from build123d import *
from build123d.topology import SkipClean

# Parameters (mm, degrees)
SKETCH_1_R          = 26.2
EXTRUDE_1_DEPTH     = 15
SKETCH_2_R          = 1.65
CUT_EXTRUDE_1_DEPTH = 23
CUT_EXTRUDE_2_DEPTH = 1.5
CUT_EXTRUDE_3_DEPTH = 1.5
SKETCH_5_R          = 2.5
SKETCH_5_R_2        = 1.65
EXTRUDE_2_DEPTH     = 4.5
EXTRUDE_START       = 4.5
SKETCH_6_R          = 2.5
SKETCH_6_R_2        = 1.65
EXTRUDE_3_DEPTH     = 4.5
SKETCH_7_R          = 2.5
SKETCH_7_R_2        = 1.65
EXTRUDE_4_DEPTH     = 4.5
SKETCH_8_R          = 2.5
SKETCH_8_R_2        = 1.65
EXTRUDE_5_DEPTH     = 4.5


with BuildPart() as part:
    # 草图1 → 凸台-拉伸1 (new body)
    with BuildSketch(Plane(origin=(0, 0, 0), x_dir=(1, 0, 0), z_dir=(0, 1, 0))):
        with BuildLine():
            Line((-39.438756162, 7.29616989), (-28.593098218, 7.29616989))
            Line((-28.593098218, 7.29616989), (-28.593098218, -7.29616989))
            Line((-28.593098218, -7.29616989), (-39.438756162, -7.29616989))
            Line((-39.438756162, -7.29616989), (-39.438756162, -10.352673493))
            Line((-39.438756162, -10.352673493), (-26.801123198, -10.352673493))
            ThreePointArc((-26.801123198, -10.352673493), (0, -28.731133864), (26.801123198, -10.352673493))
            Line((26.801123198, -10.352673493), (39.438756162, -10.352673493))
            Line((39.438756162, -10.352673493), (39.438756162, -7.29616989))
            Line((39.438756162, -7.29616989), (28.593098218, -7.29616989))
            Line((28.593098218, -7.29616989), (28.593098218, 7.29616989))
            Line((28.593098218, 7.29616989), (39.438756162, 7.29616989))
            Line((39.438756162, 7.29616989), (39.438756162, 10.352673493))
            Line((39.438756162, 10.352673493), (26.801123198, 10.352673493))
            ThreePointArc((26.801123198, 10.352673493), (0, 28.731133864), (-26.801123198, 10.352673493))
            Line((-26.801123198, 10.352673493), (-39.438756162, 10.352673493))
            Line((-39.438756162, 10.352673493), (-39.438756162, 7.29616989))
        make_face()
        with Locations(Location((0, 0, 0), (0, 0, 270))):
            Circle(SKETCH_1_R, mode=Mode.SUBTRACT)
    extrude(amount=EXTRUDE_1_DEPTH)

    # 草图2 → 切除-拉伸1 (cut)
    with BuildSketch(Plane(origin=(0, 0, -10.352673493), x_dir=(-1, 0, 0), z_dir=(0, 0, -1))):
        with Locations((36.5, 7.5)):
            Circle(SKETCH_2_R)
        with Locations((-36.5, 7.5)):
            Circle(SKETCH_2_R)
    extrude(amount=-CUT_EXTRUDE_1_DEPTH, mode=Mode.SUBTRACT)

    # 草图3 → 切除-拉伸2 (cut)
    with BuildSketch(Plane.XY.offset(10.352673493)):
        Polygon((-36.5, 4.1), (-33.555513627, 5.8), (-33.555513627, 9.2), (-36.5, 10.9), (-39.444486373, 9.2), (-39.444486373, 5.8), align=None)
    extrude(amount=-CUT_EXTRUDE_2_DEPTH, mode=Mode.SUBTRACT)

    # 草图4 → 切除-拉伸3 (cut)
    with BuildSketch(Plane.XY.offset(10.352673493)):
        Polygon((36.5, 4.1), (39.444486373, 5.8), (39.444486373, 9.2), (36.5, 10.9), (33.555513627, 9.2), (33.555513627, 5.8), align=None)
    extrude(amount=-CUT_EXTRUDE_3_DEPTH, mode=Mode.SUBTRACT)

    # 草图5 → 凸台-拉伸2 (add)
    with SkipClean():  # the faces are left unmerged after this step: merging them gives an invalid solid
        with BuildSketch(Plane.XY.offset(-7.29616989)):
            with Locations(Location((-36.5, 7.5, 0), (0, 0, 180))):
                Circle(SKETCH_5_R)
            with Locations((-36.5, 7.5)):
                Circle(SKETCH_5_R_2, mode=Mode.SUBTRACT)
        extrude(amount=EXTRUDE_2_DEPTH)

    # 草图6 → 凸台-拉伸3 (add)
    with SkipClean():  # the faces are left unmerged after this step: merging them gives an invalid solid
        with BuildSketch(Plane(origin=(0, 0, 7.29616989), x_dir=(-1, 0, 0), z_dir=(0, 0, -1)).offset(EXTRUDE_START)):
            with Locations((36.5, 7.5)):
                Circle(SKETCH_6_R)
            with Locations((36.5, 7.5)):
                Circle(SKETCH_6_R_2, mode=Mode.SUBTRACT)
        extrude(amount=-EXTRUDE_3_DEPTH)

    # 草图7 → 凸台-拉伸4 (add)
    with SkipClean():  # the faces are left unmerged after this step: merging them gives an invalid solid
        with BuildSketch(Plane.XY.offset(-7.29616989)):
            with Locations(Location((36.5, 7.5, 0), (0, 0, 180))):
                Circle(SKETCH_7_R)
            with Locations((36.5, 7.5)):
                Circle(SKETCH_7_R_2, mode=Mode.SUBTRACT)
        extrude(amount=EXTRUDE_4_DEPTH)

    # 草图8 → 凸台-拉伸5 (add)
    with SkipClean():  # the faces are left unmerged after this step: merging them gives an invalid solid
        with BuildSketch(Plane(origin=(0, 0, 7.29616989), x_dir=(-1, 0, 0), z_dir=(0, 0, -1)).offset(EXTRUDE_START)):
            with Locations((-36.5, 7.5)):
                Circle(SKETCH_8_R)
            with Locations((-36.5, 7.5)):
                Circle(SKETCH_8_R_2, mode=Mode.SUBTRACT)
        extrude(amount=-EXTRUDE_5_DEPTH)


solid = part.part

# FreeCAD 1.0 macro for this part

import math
import FreeCAD as App
import Part
import Sketcher
Q = App.Units.Quantity


def add_polygon(sketch, points):
    """Adds a closed chain of lines whose ends are joined by coincident constraints."""
    first, n = sketch.GeometryCount, len(points)
    for a, b in zip(points, points[1:] + points[:1]):
        sketch.addGeometry(Part.LineSegment(App.Vector(*a, 0), App.Vector(*b, 0)), False)
    for i in range(n):
        sketch.addConstraint(Sketcher.Constraint("Coincident", first + i, 2, first + (i + 1) % n, 1))

doc = App.newDocument("Part")
body = doc.addObject("PartDesign::Body", "Body")

sketch1 = body.newObject("Sketcher::SketchObject", "Sketch")
sketch1.AttachmentSupport = (doc.getObject("XZ_Plane"), [""])
sketch1.MapMode = "FlatFace"
sketch1.addGeometry([
    Part.LineSegment(App.Vector(-39.4, -7.3, 0), App.Vector(-28.6, -7.3, 0)),
    Part.LineSegment(App.Vector(-28.6, -7.3, 0), App.Vector(-28.6, 7.3, 0)),
    Part.LineSegment(App.Vector(-28.6, 7.3, 0), App.Vector(-39.4, 7.3, 0)),
    Part.LineSegment(App.Vector(-39.4, 7.3, 0), App.Vector(-39.4, 10.4, 0)),
    Part.LineSegment(App.Vector(-39.4, 10.4, 0), App.Vector(-26.8, 10.4, 0)),
    Part.ArcOfCircle(Part.Circle(App.Vector(0, 0, 0), App.Vector(0, 0, 1), 28.7), math.radians(21), math.radians(159)),
    Part.LineSegment(App.Vector(26.8, 10.4, 0), App.Vector(39.4, 10.4, 0)),
    Part.LineSegment(App.Vector(39.4, 10.4, 0), App.Vector(39.4, 7.3, 0)),
    Part.LineSegment(App.Vector(39.4, 7.3, 0), App.Vector(28.6, 7.3, 0)),
    Part.LineSegment(App.Vector(28.6, 7.3, 0), App.Vector(28.6, -7.3, 0)),
    Part.LineSegment(App.Vector(28.6, -7.3, 0), App.Vector(39.4, -7.3, 0)),
    Part.LineSegment(App.Vector(39.4, -7.3, 0), App.Vector(39.4, -10.4, 0)),
    Part.LineSegment(App.Vector(39.4, -10.4, 0), App.Vector(26.8, -10.4, 0)),
    Part.ArcOfCircle(Part.Circle(App.Vector(0, 0, 0), App.Vector(0, 0, 1), 28.7), math.radians(-159), math.radians(-21)),
    Part.LineSegment(App.Vector(-26.8, -10.4, 0), App.Vector(-39.4, -10.4, 0)),
    Part.LineSegment(App.Vector(-39.4, -10.4, 0), App.Vector(-39.4, -7.3, 0)),
    Part.Circle(App.Vector(0, 0, 0), App.Vector(0, 0, 1), 26.2),
], False)
sketch1.addConstraint([
    Sketcher.Constraint("Coincident", 0, 2, 1, 1),
    Sketcher.Constraint("Coincident", 1, 2, 2, 1),
    Sketcher.Constraint("Coincident", 2, 2, 3, 1),
    Sketcher.Constraint("Coincident", 3, 2, 4, 1),
    Sketcher.Constraint("Coincident", 4, 2, 5, 2),
    Sketcher.Constraint("Coincident", 5, 1, 6, 1),
    Sketcher.Constraint("Coincident", 6, 2, 7, 1),
    Sketcher.Constraint("Coincident", 7, 2, 8, 1),
    Sketcher.Constraint("Coincident", 8, 2, 9, 1),
    Sketcher.Constraint("Coincident", 9, 2, 10, 1),
    Sketcher.Constraint("Coincident", 10, 2, 11, 1),
    Sketcher.Constraint("Coincident", 11, 2, 12, 1),
    Sketcher.Constraint("Coincident", 12, 2, 13, 2),
    Sketcher.Constraint("Coincident", 13, 1, 14, 1),
    Sketcher.Constraint("Coincident", 14, 2, 15, 1),
    Sketcher.Constraint("Coincident", 15, 2, 0, 1),
    Sketcher.Constraint("Horizontal", 0),
    Sketcher.Constraint("Vertical", 1),
    Sketcher.Constraint("Horizontal", 2),
    Sketcher.Constraint("Vertical", 3),
    Sketcher.Constraint("Horizontal", 4),
    Sketcher.Constraint("Horizontal", 6),
    Sketcher.Constraint("Vertical", 7),
    Sketcher.Constraint("Horizontal", 8),
    Sketcher.Constraint("Vertical", 9),
    Sketcher.Constraint("Horizontal", 10),
    Sketcher.Constraint("Vertical", 11),
    Sketcher.Constraint("Horizontal", 12),
    Sketcher.Constraint("Horizontal", 14),
    Sketcher.Constraint("Vertical", 15),
    Sketcher.Constraint("Coincident", 5, 3, -1, 1),
    Sketcher.Constraint("Coincident", 13, 3, -1, 1),
    Sketcher.Constraint("Coincident", 16, 3, -1, 1),
    Sketcher.Constraint("Equal", 5, 13),
    Sketcher.Constraint("Symmetric", 0, 2, 8, 2, -1, 1),
    Sketcher.Constraint("Symmetric", 2, 2, 10, 2, -1, 1),
    Sketcher.Constraint("Symmetric", 6, 2, 14, 2, -1, 1),
    Sketcher.Constraint("Symmetric", 3, 2, 6, 2, -2),
    Sketcher.Constraint("Horizontal", 2, 2, 7, 2),
    Sketcher.Constraint("Horizontal", 12, 2, 13, 1),
    Sketcher.Constraint("Diameter", 16, Q("52.4 mm")),
    Sketcher.Constraint("Radius", 5, Q("28.731134 mm")),
    Sketcher.Constraint("DistanceY", 1, 1, 1, 2, Q("14.59234 mm")),
    Sketcher.Constraint("DistanceX", 0, 2, -1, 1, Q("28.593098 mm")),
    Sketcher.Constraint("DistanceX", 0, 1, 0, 2, Q("10.845658 mm")),
    Sketcher.Constraint("DistanceX", 4, 1, 4, 2, Q("12.637633 mm")),
])
pad1 = body.newObject("PartDesign::Pad", "Pad")
pad1.Profile = sketch1
pad1.Length = 15
pad1.Reversed = True

sketch2 = body.newObject("Sketcher::SketchObject", "Sketch001")
sketch2.AttachmentSupport = (doc.getObject("XY_Plane"), [""])
sketch2.MapMode = "FlatFace"
sketch2.AttachmentOffset = App.Placement(App.Vector(0, 0, -10.352673), App.Rotation())
sketch2.addGeometry([
    Part.Circle(App.Vector(-36.5, 7.5, 0), App.Vector(0, 0, 1), 1.6),
    Part.Circle(App.Vector(36.5, 7.5, 0), App.Vector(0, 0, 1), 1.6),
], False)
sketch2.addConstraint([
    Sketcher.Constraint("Equal", 0, 1),
    Sketcher.Constraint("Symmetric", 0, 3, 1, 3, -2),
    Sketcher.Constraint("Diameter", 0, Q("3.3 mm")),
    Sketcher.Constraint("DistanceX", 0, 3, 1, 3, Q("73 mm")),
    Sketcher.Constraint("DistanceY", -1, 1, 0, 3, Q("7.5 mm")),
])
pocket1 = body.newObject("PartDesign::Pocket", "Pocket")
pocket1.Profile = sketch2
pocket1.Length = 23
pocket1.Reversed = True

sketch3 = body.newObject("Sketcher::SketchObject", "Sketch002")
sketch3.AttachmentSupport = (doc.getObject("XY_Plane"), [""])
sketch3.MapMode = "FlatFace"
sketch3.AttachmentOffset = App.Placement(App.Vector(0, 0, 10.352673), App.Rotation())
add_polygon(sketch3, [(-36.5, 4.1), (-33.6, 5.8), (-33.6, 9.2), (-36.5, 10.9), (-39.4, 9.2), (-39.4, 5.8)])
sketch3.addConstraint([
    Sketcher.Constraint("Vertical", 1),
    Sketcher.Constraint("Vertical", 4),
    Sketcher.Constraint("Parallel", 0, 3),
    Sketcher.Constraint("Parallel", 2, 5),
    Sketcher.Constraint("Horizontal", 1, 2, 3, 2),
    Sketcher.Constraint("Horizontal", 0, 2, 4, 2),
    Sketcher.Constraint("Vertical", 2, 2, 5, 2),
    Sketcher.Constraint("Angle", 0, Q("30 deg")),
    Sketcher.Constraint("DistanceY", 1, 1, 1, 2, Q("3.4 mm")),
    Sketcher.Constraint("Distance", 0, Q("3.4 mm")),
    Sketcher.Constraint("DistanceY", -1, 1, 0, 2, Q("5.8 mm")),
    Sketcher.Constraint("DistanceX", 2, 2, -1, 1, Q("36.5 mm")),
])
pocket2 = body.newObject("PartDesign::Pocket", "Pocket001")
pocket2.Profile = sketch3
pocket2.Length = 1.5

sketch4 = body.newObject("Sketcher::SketchObject", "Sketch003")
sketch4.AttachmentSupport = (doc.getObject("XY_Plane"), [""])
sketch4.MapMode = "FlatFace"
sketch4.AttachmentOffset = App.Placement(App.Vector(0, 0, 10.352673), App.Rotation())
add_polygon(sketch4, [(36.5, 4.1), (39.4, 5.8), (39.4, 9.2), (36.5, 10.9), (33.6, 9.2), (33.6, 5.8)])
sketch4.addConstraint([
    Sketcher.Constraint("Vertical", 1),
    Sketcher.Constraint("Vertical", 4),
    Sketcher.Constraint("Parallel", 0, 3),
    Sketcher.Constraint("Parallel", 2, 5),
    Sketcher.Constraint("Horizontal", 1, 2, 3, 2),
    Sketcher.Constraint("Horizontal", 0, 2, 4, 2),
    Sketcher.Constraint("Vertical", 2, 2, 5, 2),
    Sketcher.Constraint("Angle", 0, Q("30 deg")),
    Sketcher.Constraint("DistanceY", 1, 1, 1, 2, Q("3.4 mm")),
    Sketcher.Constraint("Distance", 0, Q("3.4 mm")),
    Sketcher.Constraint("DistanceY", -1, 1, 0, 2, Q("5.8 mm")),
    Sketcher.Constraint("DistanceX", -1, 1, 2, 2, Q("36.5 mm")),
])
pocket3 = body.newObject("PartDesign::Pocket", "Pocket002")
pocket3.Profile = sketch4
pocket3.Length = 1.5

sketch5 = body.newObject("Sketcher::SketchObject", "Sketch004")
sketch5.AttachmentSupport = (doc.getObject("XY_Plane"), [""])
sketch5.MapMode = "FlatFace"
sketch5.AttachmentOffset = App.Placement(App.Vector(0, 0, -7.29617), App.Rotation())
sketch5.addGeometry([
    Part.Circle(App.Vector(-36.5, 7.5, 0), App.Vector(0, 0, 1), 2.5),
    Part.Circle(App.Vector(-36.5, 7.5, 0), App.Vector(0, 0, 1), 1.6),
], False)
sketch5.addConstraint([
    Sketcher.Constraint("Coincident", 1, 3, 0, 3),
    Sketcher.Constraint("Diameter", 0, Q("5 mm")),
    Sketcher.Constraint("Diameter", 1, Q("3.3 mm")),
    Sketcher.Constraint("DistanceX", 0, 3, -1, 1, Q("36.5 mm")),
    Sketcher.Constraint("DistanceY", -1, 1, 0, 3, Q("7.5 mm")),
])
pad2 = body.newObject("PartDesign::Pad", "Pad001")
pad2.Profile = sketch5
pad2.Length = 4.5

sketch6 = body.newObject("Sketcher::SketchObject", "Sketch005")
sketch6.AttachmentSupport = (doc.getObject("XY_Plane"), [""])
sketch6.MapMode = "FlatFace"
sketch6.AttachmentOffset = App.Placement(App.Vector(0, 0, 2.79617), App.Rotation())
sketch6.addGeometry([
    Part.Circle(App.Vector(-36.5, 7.5, 0), App.Vector(0, 0, 1), 2.5),
    Part.Circle(App.Vector(-36.5, 7.5, 0), App.Vector(0, 0, 1), 1.6),
], False)
sketch6.addConstraint([
    Sketcher.Constraint("Coincident", 1, 3, 0, 3),
    Sketcher.Constraint("Diameter", 0, Q("5 mm")),
    Sketcher.Constraint("Diameter", 1, Q("3.3 mm")),
    Sketcher.Constraint("DistanceX", 0, 3, -1, 1, Q("36.5 mm")),
    Sketcher.Constraint("DistanceY", -1, 1, 0, 3, Q("7.5 mm")),
])
pad3 = body.newObject("PartDesign::Pad", "Pad002")
pad3.Profile = sketch6
pad3.Length = 4.5

sketch7 = body.newObject("Sketcher::SketchObject", "Sketch006")
sketch7.AttachmentSupport = (doc.getObject("XY_Plane"), [""])
sketch7.MapMode = "FlatFace"
sketch7.AttachmentOffset = App.Placement(App.Vector(0, 0, -7.29617), App.Rotation())
sketch7.addGeometry([
    Part.Circle(App.Vector(36.5, 7.5, 0), App.Vector(0, 0, 1), 2.5),
    Part.Circle(App.Vector(36.5, 7.5, 0), App.Vector(0, 0, 1), 1.6),
], False)
sketch7.addConstraint([
    Sketcher.Constraint("Coincident", 1, 3, 0, 3),
    Sketcher.Constraint("Diameter", 0, Q("5 mm")),
    Sketcher.Constraint("Diameter", 1, Q("3.3 mm")),
    Sketcher.Constraint("DistanceX", -1, 1, 0, 3, Q("36.5 mm")),
    Sketcher.Constraint("DistanceY", -1, 1, 0, 3, Q("7.5 mm")),
])
pad4 = body.newObject("PartDesign::Pad", "Pad003")
pad4.Profile = sketch7
pad4.Length = 4.5

sketch8 = body.newObject("Sketcher::SketchObject", "Sketch007")
sketch8.AttachmentSupport = (doc.getObject("XY_Plane"), [""])
sketch8.MapMode = "FlatFace"
sketch8.AttachmentOffset = App.Placement(App.Vector(0, 0, 2.79617), App.Rotation())
sketch8.addGeometry([
    Part.Circle(App.Vector(36.5, 7.5, 0), App.Vector(0, 0, 1), 2.5),
    Part.Circle(App.Vector(36.5, 7.5, 0), App.Vector(0, 0, 1), 1.6),
], False)
sketch8.addConstraint([
    Sketcher.Constraint("Coincident", 1, 3, 0, 3),
    Sketcher.Constraint("Diameter", 0, Q("5 mm")),
    Sketcher.Constraint("Diameter", 1, Q("3.3 mm")),
    Sketcher.Constraint("DistanceX", -1, 1, 0, 3, Q("36.5 mm")),
    Sketcher.Constraint("DistanceY", -1, 1, 0, 3, Q("7.5 mm")),
])
pad5 = body.newObject("PartDesign::Pad", "Pad004")
pad5.Profile = sketch8
pad5.Length = 4.5

doc.recompute()
